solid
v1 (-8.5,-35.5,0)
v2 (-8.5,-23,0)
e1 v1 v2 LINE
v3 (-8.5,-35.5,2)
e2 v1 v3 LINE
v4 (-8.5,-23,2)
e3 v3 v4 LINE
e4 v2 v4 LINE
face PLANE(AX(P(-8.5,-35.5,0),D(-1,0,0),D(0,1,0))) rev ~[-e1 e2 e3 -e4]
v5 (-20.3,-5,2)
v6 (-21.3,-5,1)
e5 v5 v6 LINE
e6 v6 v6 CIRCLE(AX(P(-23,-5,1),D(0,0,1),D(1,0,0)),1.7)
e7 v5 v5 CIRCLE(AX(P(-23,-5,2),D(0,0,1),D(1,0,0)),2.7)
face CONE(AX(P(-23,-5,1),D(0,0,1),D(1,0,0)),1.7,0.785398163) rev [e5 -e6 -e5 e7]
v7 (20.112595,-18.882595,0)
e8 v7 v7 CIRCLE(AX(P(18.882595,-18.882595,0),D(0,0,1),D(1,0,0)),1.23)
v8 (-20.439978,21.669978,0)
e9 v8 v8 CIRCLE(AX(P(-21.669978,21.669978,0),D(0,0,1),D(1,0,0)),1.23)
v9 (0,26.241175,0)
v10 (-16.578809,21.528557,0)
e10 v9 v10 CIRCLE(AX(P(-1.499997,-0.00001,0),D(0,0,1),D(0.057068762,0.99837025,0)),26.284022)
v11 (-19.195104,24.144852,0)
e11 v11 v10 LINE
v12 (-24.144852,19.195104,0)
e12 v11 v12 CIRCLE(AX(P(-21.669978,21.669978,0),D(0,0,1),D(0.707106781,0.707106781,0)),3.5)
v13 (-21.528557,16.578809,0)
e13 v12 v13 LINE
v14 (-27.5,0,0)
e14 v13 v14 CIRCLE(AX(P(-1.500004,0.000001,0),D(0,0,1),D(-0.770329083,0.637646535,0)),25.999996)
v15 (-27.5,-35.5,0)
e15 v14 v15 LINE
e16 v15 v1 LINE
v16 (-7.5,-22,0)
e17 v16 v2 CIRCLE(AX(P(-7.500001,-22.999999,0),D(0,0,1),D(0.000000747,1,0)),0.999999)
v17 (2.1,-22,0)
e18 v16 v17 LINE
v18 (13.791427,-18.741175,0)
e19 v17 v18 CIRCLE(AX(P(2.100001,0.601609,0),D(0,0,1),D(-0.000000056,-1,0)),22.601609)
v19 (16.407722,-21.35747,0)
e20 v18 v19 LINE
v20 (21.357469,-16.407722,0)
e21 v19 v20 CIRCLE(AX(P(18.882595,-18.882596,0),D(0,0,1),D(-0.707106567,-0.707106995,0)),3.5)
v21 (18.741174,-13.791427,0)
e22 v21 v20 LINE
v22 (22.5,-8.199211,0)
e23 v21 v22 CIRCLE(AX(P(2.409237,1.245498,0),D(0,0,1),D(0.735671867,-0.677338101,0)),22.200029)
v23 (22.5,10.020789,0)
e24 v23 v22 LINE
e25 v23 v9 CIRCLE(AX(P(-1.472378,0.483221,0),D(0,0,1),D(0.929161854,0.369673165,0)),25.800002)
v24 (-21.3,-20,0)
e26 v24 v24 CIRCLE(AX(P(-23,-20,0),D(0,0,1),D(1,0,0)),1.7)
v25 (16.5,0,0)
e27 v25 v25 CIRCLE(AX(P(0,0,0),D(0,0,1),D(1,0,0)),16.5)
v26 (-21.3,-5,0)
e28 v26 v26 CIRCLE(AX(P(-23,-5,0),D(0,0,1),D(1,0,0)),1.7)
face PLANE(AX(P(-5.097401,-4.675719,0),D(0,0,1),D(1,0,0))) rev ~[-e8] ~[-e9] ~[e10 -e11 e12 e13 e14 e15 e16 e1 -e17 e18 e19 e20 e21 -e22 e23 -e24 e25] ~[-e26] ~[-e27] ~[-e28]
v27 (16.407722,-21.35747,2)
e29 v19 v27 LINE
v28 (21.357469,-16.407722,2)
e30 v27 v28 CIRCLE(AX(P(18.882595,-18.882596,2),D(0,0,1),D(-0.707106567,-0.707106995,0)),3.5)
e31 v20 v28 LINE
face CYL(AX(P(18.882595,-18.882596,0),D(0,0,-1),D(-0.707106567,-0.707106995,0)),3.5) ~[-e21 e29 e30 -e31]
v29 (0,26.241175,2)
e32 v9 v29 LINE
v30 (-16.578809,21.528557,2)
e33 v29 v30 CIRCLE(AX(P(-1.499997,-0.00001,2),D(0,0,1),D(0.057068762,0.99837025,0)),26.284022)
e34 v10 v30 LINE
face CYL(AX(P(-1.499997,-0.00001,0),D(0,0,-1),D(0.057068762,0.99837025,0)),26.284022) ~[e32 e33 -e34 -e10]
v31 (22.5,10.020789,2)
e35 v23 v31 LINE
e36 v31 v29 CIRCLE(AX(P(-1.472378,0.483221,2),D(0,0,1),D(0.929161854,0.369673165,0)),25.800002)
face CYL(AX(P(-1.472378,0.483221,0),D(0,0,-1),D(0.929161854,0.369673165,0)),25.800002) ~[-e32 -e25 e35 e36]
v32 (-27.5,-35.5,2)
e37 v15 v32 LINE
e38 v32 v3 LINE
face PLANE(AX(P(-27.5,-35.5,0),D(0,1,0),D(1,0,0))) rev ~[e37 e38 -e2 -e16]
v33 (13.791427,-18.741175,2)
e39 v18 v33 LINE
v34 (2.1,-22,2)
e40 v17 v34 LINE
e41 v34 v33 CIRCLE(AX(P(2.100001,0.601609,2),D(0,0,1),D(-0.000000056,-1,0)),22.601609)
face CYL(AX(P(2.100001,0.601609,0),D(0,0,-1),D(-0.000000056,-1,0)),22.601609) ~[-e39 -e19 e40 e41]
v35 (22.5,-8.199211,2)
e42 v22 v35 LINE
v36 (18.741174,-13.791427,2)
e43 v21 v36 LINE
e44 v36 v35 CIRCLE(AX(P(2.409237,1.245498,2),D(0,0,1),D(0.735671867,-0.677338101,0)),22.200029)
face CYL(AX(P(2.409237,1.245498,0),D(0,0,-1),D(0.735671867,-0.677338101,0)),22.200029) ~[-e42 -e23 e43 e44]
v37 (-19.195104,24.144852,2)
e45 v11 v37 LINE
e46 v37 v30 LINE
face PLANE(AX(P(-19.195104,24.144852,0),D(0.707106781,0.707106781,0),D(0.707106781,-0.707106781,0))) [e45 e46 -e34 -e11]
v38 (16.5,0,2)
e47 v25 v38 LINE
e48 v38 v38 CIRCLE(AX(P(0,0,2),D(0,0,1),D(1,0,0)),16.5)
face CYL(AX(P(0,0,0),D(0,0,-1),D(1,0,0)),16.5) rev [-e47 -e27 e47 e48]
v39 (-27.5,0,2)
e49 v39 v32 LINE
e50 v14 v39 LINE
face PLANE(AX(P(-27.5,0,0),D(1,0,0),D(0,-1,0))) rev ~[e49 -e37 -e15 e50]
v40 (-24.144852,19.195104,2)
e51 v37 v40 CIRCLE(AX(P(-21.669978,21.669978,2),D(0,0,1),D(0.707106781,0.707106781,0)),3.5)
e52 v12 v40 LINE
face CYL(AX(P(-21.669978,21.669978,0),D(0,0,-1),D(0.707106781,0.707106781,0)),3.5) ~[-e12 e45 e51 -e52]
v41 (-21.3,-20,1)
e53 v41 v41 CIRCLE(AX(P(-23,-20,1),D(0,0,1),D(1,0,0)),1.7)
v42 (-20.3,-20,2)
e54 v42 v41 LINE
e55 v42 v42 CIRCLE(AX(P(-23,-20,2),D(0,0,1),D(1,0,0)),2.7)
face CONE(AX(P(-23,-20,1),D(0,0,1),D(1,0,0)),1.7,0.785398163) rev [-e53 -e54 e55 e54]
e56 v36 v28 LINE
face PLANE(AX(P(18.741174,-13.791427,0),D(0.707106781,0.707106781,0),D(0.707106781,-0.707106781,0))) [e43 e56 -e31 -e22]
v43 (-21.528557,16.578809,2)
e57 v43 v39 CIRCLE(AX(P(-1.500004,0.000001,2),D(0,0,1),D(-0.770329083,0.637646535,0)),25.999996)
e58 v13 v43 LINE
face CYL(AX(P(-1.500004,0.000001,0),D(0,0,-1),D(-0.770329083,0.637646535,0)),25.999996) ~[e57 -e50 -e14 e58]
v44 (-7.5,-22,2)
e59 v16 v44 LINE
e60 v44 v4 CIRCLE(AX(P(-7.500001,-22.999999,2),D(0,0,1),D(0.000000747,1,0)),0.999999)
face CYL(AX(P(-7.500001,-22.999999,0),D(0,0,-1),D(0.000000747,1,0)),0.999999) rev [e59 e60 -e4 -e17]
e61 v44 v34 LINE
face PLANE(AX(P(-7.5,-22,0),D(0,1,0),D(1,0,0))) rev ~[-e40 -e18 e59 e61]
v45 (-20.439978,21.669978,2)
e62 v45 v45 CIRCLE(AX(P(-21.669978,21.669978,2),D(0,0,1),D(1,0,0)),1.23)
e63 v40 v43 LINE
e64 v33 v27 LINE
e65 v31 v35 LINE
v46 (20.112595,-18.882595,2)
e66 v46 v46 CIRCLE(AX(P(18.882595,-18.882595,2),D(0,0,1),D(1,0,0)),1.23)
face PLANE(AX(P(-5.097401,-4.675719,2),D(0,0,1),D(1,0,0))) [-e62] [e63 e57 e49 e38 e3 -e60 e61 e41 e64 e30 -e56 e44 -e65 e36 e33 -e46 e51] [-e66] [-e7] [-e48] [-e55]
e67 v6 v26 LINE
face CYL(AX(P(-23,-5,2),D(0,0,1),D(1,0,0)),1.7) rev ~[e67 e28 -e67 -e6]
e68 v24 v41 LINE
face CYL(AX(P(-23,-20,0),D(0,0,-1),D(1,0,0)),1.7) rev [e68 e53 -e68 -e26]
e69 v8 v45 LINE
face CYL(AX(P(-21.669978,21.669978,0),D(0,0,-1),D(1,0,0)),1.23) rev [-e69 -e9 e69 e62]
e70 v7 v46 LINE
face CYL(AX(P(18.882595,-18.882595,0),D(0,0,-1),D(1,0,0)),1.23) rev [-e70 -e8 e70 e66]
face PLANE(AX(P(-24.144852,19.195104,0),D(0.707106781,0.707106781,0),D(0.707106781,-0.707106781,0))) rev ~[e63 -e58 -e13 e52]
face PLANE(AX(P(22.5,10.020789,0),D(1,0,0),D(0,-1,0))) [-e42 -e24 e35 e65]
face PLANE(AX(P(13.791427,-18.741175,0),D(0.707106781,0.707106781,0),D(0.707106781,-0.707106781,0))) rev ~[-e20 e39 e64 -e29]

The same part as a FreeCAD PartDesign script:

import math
import FreeCAD as App
import Part
import Sketcher

V = App.Vector
Q = App.Units.Quantity


def edges_at(feature, points):
    """Names of the edges that pass closest to the given points."""
    edges = feature.Shape.Edges
    near = lambda p: min(range(len(edges)), key=lambda i: edges[i].distToShape(Part.Vertex(*p))[0])
    return sorted({f"Edge{near(p) + 1}" for p in points})

doc = App.newDocument("Part")
body = doc.addObject("PartDesign::Body", "Body")

# Sketch on XY plane
sketch1 = body.newObject("Sketcher::SketchObject", "Sketch")
sketch1.AttachmentSupport = (doc.getObject("XY_Plane"), [""])
sketch1.MapMode = "FlatFace"
sketch1.addGeometry(Part.LineSegment(V(-27.5, 0, 0), V(-27.5, -35.5, 0)), False)
sketch1.addGeometry(Part.LineSegment(V(-27.5, -35.5, 0), V(-8.5, -35.5, 0)), False)
sketch1.addGeometry(Part.LineSegment(V(-8.5, -35.5, 0), V(-8.5, -23, 0)), False)
sketch1.addGeometry(Part.ArcOfCircle(Part.Circle(V(-7.500001, -22.999999, 0), V(0, 0, 1), 0.999999), math.radians(89.999957), math.radians(180.000043)), False)
sketch1.addGeometry(Part.LineSegment(V(-7.5, -22, 0), V(2.1, -22, 0)), False)
sketch1.addGeometry(Part.ArcOfCircle(Part.Circle(V(2.100001, 0.601609, 0), V(0, 0, 1), 22.601609), math.radians(-90.000003), math.radians(-58.849831)), False)
sketch1.addGeometry(Part.LineSegment(V(13.791427, -18.741175, 0), V(16.407722, -21.35747, 0)), False)
sketch1.addGeometry(Part.ArcOfCircle(Part.Circle(V(18.882595, -18.882596, 0), V(0, 0, 1), 3.5), math.radians(-134.999983), math.radians(44.999994)), False)
sketch1.addGeometry(Part.LineSegment(V(21.357469, -16.407722, 0), V(18.741174, -13.791427, 0)), False)
sketch1.addGeometry(Part.ArcOfCircle(Part.Circle(V(2.409237, 1.245498, 0), V(0, 0, 1), 22.200029), math.radians(-42.635981), math.radians(-25.178315)), False)
sketch1.addGeometry(Part.LineSegment(V(22.5, -8.199211, 0), V(22.5, 10.020789, 0)), False)
sketch1.addGeometry(Part.ArcOfCircle(Part.Circle(V(-1.472378, 0.483221, 0), V(0, 0, 1), 25.800002), math.radians(21.695462), math.radians(86.728415)), False)
sketch1.addGeometry(Part.ArcOfCircle(Part.Circle(V(-1.499997, -0.00001, 0), V(0, 0, 1), 26.284022), math.radians(86.728423), math.radians(125.007763)), False)
sketch1.addGeometry(Part.LineSegment(V(-16.578809, 21.528557, 0), V(-19.195104, 24.144852, 0)), False)
sketch1.addGeometry(Part.ArcOfCircle(Part.Circle(V(-21.669978, 21.669978, 0), V(0, 0, 1), 3.5), math.radians(45), math.radians(225)), False)
sketch1.addGeometry(Part.LineSegment(V(-24.144852, 19.195104, 0), V(-21.528557, 16.578809, 0)), False)
sketch1.addGeometry(Part.ArcOfCircle(Part.Circle(V(-1.500004, 0.000001, 0), V(0, 0, 1), 25.999996), math.radians(140.383449), math.radians(180.000003)), False)
sketch1.addGeometry(Part.Circle(V(-23, -20, 0), V(0, 0, 1), 1.7), False)
sketch1.addGeometry(Part.Circle(V(18.882595, -18.882595, 0), V(0, 0, 1), 1.23), False)
sketch1.addGeometry(Part.Circle(V(0, 0, 0), V(0, 0, 1), 16.5), False)
sketch1.addGeometry(Part.Circle(V(-21.669978, 21.669978, 0), V(0, 0, 1), 1.23), False)
sketch1.addConstraint(Sketcher.Constraint("Coincident", 0, 2, 1, 1))
sketch1.addConstraint(Sketcher.Constraint("Coincident", 1, 2, 2, 1))
sketch1.addConstraint(Sketcher.Constraint("Tangent", 2, 2, 3, 2))
sketch1.addConstraint(Sketcher.Constraint("Tangent", 3, 1, 4, 1))
sketch1.addConstraint(Sketcher.Constraint("Tangent", 4, 2, 5, 1))
sketch1.addConstraint(Sketcher.Constraint("Coincident", 5, 2, 6, 1))
sketch1.addConstraint(Sketcher.Constraint("Tangent", 6, 2, 7, 1))
sketch1.addConstraint(Sketcher.Constraint("Tangent", 7, 2, 8, 1))
sketch1.addConstraint(Sketcher.Constraint("Coincident", 8, 2, 9, 1))
sketch1.addConstraint(Sketcher.Constraint("Coincident", 9, 2, 10, 1))
sketch1.addConstraint(Sketcher.Constraint("Coincident", 10, 2, 11, 1))
sketch1.addConstraint(Sketcher.Constraint("Tangent", 11, 2, 12, 1))
sketch1.addConstraint(Sketcher.Constraint("Coincident", 12, 2, 13, 1))
sketch1.addConstraint(Sketcher.Constraint("Tangent", 13, 2, 14, 1))
sketch1.addConstraint(Sketcher.Constraint("Tangent", 14, 2, 15, 1))
sketch1.addConstraint(Sketcher.Constraint("Coincident", 15, 2, 16, 1))
sketch1.addConstraint(Sketcher.Constraint("Tangent", 16, 2, 0, 1))
sketch1.addConstraint(Sketcher.Constraint("Vertical", 0))
sketch1.addConstraint(Sketcher.Constraint("Horizontal", 1))
sketch1.addConstraint(Sketcher.Constraint("Vertical", 2))
sketch1.addConstraint(Sketcher.Constraint("Horizontal", 4))
sketch1.addConstraint(Sketcher.Constraint("Vertical", 10))
sketch1.addConstraint(Sketcher.Constraint("Coincident", 19, 3, -1, 1))
sketch1.addConstraint(Sketcher.Constraint("Coincident", 18, 3, 7, 3))
sketch1.addConstraint(Sketcher.Constraint("Coincident", 20, 3, 14, 3))
sketch1.addConstraint(Sketcher.Constraint("Equal", 7, 14))
sketch1.addConstraint(Sketcher.Constraint("Equal", 18, 20))
sketch1.addConstraint(Sketcher.Constraint("PointOnObject", 16, 3, -1))
sketch1.addConstraint(Sketcher.Constraint("PointOnObject", 11, 2, -2))
sketch1.addConstraint(Sketcher.Constraint("Parallel", 6, 8))
sketch1.addConstraint(Sketcher.Constraint("Parallel", 8, 13))
sketch1.addConstraint(Sketcher.Constraint("Parallel", 13, 15))
sketch1.addConstraint(Sketcher.Constraint("Equal", 6, 8))
sketch1.addConstraint(Sketcher.Constraint("Equal", 8, 13))
sketch1.addConstraint(Sketcher.Constraint("Equal", 13, 15))
sketch1.addConstraint(Sketcher.Constraint("Diameter", 19, 33.0))
sketch1.addConstraint(Sketcher.Constraint("Radius", 3, 0.999999))
sketch1.addConstraint(Sketcher.Constraint("Diameter", 17, 3.4))
sketch1.addConstraint(Sketcher.Constraint("Radius", 7, 3.5))
sketch1.addConstraint(Sketcher.Constraint("Diameter", 18, 2.46))
sketch1.addConstraint(Sketcher.Constraint("DistanceX", 1, 1, 1, 2, 19.0))
sketch1.addConstraint(Sketcher.Constraint("Angle", 6, Q("-45 deg")))
sketch1.addConstraint(Sketcher.Constraint("DistanceX", 4, 1, 4, 2, 9.6))
sketch1.addConstraint(Sketcher.Constraint("DistanceY", 0, 2, 0, 1, 35.5))
sketch1.addConstraint(Sketcher.Constraint("DistanceY", 2, 1, 2, 2, 12.5))
sketch1.addConstraint(Sketcher.Constraint("DistanceX", 17, 3, -1, 1, 23.0))
sketch1.addConstraint(Sketcher.Constraint("DistanceY", 17, 3, -1, 1, 20.0))
sketch1.addConstraint(Sketcher.Constraint("Distance", 6, 3.7))
sketch1.addConstraint(Sketcher.Constraint("DistanceY", 10, 1, 10, 2, 18.22))
sketch1.addConstraint(Sketcher.Constraint("DistanceX", 3, 3, -1, 1, 7.500001))
sketch1.addConstraint(Sketcher.Constraint("DistanceX", -1, 1, 9, 2, 22.5))
sketch1.addConstraint(Sketcher.Constraint("Radius", 5, 22.601609))
sketch1.addConstraint(Sketcher.Constraint("Radius", 9, 22.200029))
sketch1.addConstraint(Sketcher.Constraint("Radius", 12, 26.284022))
sketch1.addConstraint(Sketcher.Constraint("Radius", 11, 25.800002))
sketch1.addConstraint(Sketcher.Constraint("Radius", 16, 25.999996))
sketch1.addConstraint(Sketcher.Constraint("DistanceY", -1, 1, 9, 3, 1.245498))
sketch1.addConstraint(Sketcher.Constraint("DistanceX", 14, 3, 11, 3, 20.1976))
sketch1.addConstraint(Sketcher.Constraint("DistanceY", -1, 1, 11, 3, 0.483221))
pad1 = body.newObject("PartDesign::Pad", "Pad")
pad1.Profile = sketch1
pad1.Length = 2

# Sketch on XY plane
sketch2 = body.newObject("Sketcher::SketchObject", "Sketch001")
sketch2.AttachmentSupport = (doc.getObject("XY_Plane"), [""])
sketch2.MapMode = "FlatFace"
sketch2.AttachmentOffset = App.Placement(V(0, 0, 2), App.Rotation())
sketch2.addGeometry(Part.Circle(V(-23, -5, 0), V(0, 0, 1), 1.7), False)
sketch2.addConstraint(Sketcher.Constraint("Diameter", 0, 3.4))
sketch2.addConstraint(Sketcher.Constraint("DistanceX", 0, 3, -1, 1, 23.0))
sketch2.addConstraint(Sketcher.Constraint("DistanceY", 0, 3, -1, 1, 5.0))
pocket1 = body.newObject("PartDesign::Pocket", "Pocket")
pocket1.Profile = sketch2
pocket1.Length = 5
doc.recompute()

chamfer = body.newObject("PartDesign::Chamfer", "Chamfer")
chamfer.Base = (pocket1, edges_at(pocket1, [(-24.7, -20, 2), (-24.7, -5, 2)]))
chamfer.Size = 1

doc.recompute()
